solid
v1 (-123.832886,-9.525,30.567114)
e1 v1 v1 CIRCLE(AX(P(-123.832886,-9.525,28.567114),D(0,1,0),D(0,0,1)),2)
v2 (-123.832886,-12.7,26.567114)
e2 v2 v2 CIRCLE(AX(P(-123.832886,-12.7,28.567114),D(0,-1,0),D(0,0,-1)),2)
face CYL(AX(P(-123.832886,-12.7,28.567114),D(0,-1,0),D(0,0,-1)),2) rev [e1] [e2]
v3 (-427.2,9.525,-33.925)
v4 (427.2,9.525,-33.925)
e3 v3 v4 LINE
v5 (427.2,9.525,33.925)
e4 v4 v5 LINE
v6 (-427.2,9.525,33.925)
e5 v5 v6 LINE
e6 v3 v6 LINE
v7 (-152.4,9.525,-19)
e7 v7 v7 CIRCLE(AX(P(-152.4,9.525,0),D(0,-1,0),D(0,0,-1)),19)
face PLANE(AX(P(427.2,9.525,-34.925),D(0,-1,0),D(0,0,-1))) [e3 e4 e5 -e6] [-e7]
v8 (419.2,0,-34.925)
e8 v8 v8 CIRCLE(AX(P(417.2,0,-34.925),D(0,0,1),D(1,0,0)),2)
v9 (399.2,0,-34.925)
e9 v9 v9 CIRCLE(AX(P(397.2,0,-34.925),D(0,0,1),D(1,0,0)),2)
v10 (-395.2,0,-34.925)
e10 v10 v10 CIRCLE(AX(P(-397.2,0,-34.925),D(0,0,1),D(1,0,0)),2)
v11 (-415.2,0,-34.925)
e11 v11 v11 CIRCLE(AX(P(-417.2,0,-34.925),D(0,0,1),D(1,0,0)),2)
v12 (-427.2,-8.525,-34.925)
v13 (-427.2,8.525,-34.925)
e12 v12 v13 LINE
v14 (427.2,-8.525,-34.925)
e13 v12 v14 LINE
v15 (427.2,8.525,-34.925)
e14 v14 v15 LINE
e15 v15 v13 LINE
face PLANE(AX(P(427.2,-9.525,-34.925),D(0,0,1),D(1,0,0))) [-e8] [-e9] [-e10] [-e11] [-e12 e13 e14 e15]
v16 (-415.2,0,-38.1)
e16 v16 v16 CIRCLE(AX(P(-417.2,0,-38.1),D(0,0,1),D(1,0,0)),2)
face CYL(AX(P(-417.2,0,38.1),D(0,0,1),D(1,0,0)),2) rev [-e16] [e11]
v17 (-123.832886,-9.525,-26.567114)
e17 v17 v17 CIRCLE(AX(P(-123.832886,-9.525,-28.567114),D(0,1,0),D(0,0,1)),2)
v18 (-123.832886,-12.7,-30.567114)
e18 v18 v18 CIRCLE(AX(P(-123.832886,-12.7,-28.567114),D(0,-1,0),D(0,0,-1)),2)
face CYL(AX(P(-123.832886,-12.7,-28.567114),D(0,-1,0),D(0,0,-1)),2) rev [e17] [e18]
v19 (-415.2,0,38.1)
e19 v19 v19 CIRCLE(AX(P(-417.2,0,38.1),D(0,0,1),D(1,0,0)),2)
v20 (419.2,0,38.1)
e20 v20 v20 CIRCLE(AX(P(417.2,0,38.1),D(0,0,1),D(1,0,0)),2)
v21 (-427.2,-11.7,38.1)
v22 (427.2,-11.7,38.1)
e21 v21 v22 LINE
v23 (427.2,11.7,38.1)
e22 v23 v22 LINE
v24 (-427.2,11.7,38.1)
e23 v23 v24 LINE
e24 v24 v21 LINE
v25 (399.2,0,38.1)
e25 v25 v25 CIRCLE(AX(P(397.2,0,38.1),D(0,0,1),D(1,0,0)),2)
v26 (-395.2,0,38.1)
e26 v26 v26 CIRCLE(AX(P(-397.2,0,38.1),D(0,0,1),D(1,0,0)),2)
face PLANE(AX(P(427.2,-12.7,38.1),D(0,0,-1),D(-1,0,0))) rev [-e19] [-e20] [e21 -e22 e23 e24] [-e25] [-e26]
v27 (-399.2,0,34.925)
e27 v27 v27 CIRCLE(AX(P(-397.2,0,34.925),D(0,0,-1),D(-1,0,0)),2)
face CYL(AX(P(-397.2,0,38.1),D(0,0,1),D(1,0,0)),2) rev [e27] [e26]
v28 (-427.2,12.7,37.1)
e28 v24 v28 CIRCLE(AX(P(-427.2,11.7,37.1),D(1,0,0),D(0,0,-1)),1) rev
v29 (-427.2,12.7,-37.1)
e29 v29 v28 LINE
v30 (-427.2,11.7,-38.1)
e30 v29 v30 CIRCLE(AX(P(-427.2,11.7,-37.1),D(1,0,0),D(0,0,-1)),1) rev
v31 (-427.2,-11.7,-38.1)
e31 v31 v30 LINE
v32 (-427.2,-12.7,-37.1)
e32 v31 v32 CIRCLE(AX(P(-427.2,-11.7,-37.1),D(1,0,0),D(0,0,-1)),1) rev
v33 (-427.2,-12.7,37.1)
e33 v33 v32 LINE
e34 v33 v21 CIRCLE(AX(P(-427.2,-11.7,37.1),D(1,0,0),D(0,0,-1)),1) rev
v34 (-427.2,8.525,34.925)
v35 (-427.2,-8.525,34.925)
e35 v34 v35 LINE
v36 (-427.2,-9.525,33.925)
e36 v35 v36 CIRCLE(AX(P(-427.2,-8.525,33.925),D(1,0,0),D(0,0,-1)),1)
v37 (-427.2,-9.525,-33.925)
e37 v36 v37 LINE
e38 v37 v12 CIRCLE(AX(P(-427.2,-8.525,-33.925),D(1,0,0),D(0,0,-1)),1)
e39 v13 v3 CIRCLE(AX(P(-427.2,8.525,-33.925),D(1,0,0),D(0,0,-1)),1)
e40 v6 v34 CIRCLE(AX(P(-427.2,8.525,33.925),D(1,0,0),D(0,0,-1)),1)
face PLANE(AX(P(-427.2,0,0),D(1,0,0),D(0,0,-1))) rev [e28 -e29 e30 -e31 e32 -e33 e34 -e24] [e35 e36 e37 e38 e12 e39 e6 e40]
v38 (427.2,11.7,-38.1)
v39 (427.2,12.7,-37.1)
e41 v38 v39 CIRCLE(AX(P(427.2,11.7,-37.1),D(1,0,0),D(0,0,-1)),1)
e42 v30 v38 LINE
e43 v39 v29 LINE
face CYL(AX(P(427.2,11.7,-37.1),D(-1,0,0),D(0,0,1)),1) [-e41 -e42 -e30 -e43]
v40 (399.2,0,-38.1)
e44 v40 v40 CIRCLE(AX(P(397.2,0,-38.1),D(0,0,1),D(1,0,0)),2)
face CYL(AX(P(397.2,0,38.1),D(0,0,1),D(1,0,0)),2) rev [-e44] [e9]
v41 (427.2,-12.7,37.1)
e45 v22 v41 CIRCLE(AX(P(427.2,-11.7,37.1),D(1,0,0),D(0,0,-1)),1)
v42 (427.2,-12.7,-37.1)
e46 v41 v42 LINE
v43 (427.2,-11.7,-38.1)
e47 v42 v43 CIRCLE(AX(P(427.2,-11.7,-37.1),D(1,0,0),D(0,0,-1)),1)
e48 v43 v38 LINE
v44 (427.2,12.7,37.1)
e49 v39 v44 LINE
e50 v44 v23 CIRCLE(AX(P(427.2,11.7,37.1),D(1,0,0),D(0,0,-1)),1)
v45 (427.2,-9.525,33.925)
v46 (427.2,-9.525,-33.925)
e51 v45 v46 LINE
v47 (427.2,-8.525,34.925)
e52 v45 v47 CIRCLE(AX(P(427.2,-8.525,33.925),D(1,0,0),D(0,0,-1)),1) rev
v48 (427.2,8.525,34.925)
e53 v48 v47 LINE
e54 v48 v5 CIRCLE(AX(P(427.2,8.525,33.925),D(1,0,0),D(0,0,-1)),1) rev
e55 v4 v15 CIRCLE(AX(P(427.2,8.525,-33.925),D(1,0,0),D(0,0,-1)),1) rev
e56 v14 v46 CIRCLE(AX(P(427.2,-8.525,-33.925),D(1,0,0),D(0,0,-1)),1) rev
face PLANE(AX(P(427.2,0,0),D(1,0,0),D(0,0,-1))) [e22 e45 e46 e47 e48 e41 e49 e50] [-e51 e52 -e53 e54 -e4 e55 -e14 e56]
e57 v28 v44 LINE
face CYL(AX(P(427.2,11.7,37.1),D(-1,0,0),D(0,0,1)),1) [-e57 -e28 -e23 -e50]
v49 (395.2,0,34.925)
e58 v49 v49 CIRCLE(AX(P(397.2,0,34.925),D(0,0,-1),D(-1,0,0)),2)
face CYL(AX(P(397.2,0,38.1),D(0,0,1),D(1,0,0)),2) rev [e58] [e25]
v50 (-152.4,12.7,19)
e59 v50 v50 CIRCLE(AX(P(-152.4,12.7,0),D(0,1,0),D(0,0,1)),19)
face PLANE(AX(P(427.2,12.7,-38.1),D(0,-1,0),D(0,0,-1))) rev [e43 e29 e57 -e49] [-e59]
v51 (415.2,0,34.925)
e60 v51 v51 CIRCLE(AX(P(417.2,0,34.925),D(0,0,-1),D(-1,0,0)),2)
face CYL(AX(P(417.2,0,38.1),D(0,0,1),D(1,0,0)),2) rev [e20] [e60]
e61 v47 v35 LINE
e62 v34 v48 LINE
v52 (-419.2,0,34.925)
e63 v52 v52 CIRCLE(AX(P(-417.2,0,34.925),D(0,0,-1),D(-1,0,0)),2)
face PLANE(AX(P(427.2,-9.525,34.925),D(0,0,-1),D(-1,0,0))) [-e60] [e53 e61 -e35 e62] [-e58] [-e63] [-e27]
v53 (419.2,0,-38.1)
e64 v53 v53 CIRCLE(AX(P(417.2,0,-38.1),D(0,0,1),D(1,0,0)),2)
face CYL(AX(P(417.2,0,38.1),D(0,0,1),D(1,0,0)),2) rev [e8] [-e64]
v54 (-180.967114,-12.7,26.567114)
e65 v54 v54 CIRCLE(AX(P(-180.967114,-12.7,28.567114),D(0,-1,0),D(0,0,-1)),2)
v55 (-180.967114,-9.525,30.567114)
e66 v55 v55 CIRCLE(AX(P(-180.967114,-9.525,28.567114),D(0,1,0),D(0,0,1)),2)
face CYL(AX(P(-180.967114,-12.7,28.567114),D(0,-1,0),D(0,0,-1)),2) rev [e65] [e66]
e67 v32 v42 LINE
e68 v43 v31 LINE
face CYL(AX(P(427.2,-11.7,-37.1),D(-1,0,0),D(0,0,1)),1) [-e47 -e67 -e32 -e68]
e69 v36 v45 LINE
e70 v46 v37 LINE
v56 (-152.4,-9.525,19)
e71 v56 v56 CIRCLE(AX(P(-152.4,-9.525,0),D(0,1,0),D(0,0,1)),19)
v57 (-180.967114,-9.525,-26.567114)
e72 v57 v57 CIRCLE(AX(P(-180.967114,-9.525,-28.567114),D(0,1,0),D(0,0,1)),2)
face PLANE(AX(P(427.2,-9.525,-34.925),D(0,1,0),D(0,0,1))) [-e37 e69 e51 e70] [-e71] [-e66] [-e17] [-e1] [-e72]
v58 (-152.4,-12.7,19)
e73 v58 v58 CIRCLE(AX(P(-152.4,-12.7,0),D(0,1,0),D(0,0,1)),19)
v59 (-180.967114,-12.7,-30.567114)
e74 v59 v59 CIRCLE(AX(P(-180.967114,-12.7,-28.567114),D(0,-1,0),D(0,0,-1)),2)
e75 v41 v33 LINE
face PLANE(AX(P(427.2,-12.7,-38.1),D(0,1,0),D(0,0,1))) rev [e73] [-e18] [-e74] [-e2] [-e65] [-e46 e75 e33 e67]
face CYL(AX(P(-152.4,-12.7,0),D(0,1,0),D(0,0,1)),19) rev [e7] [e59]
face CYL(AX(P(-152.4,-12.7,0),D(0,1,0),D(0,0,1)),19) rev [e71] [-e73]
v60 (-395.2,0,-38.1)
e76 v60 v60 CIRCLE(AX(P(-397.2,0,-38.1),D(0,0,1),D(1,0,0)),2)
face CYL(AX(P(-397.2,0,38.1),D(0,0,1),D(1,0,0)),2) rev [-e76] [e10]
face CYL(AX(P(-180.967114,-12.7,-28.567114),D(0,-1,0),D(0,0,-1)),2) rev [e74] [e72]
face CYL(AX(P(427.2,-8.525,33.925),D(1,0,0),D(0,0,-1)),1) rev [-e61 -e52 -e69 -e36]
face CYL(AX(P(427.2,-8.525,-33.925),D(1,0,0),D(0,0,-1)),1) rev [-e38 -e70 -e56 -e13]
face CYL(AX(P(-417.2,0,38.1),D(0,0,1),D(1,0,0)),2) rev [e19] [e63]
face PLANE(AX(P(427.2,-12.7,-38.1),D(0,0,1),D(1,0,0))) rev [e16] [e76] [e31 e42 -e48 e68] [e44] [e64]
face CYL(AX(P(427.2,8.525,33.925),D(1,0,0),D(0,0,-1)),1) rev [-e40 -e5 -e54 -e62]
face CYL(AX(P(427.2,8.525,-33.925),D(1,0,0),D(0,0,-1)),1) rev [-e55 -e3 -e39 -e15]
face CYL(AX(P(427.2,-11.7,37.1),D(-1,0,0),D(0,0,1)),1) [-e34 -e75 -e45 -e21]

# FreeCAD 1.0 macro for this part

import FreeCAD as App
import Part
import Sketcher

V = App.Vector
Q = App.Units.Quantity


def edges_at(feature, points):
    """Names of the edges that pass closest to the given points."""
    edges = feature.Shape.Edges
    near = lambda p: min(range(len(edges)), key=lambda i: edges[i].distToShape(Part.Vertex(*p))[0])
    return sorted({f"Edge{near(p) + 1}" for p in points})


def add_polygon(sketch, points):
    """Adds a closed chain of lines whose ends are joined by coincident constraints."""
    first, n = sketch.GeometryCount, len(points)
    for a, b in zip(points, points[1:] + points[:1]):
        sketch.addGeometry(Part.LineSegment(App.Vector(*a, 0), App.Vector(*b, 0)), False)
    for i in range(n):
        sketch.addConstraint(Sketcher.Constraint("Coincident", first + i, 2, first + (i + 1) % n, 1))

doc = App.newDocument("Part")
params = doc.addObject("Spreadsheet::Sheet", "Params")
for row, (alias, value) in enumerate([
    ("sketch1_width", "1 in"),
    ("sketch1_height", "3 in"),
    ("sketch1_width2", "0.75 in"),
    ("sketch1_height2", "2.75 in"),
    ("pad1_length", "854.4 mm"),
    ("fillet_radius", "1 mm"),
    ("hole_diameter", "4 mm"),
    ("hole2_diameter", "4 mm"),
    ("hole2_depth", "0.125 in"),
], start=1):
    params.set(f"A{row}", alias)
    params.set(f"B{row}", "=" + value)
    params.setAlias(f"B{row}", alias)

body = doc.addObject("PartDesign::Body", "Body")

# Sketch on YZ plane
sketch1 = body.newObject("Sketcher::SketchObject", "Sketch")
sketch1.AttachmentSupport = (doc.getObject("YZ_Plane"), [""])
sketch1.MapMode = "FlatFace"
add_polygon(sketch1, [(13, 38), (-13, 38), (-13, -38), (13, -38)])  # lines 0-3
add_polygon(sketch1, [(-10, -35), (-10, 35), (10, 35), (10, -35)])  # lines 4-7
sketch1.addConstraint(Sketcher.Constraint("Horizontal", 0))
sketch1.addConstraint(Sketcher.Constraint("Vertical", 1))
sketch1.addConstraint(Sketcher.Constraint("Horizontal", 2))
sketch1.addConstraint(Sketcher.Constraint("Vertical", 3))
sketch1.addConstraint(Sketcher.Constraint("Vertical", 4))
sketch1.addConstraint(Sketcher.Constraint("Horizontal", 5))
sketch1.addConstraint(Sketcher.Constraint("Vertical", 6))
sketch1.addConstraint(Sketcher.Constraint("Horizontal", 7))
sketch1.addConstraint(Sketcher.Constraint("Symmetric", 0, 2, 2, 2, -1, 1))
sketch1.addConstraint(Sketcher.Constraint("Symmetric", 4, 2, 6, 2, -1, 1))
sketch1.addConstraint(Sketcher.Constraint("DistanceX", 0, 2, 0, 1, Q("1 in")))
sketch1.addConstraint(Sketcher.Constraint("DistanceY", 1, 2, 1, 1, Q("3 in")))
sketch1.addConstraint(Sketcher.Constraint("DistanceX", 5, 1, 5, 2, Q("0.75 in")))
sketch1.addConstraint(Sketcher.Constraint("DistanceY", 4, 1, 4, 2, Q("2.75 in")))
sketch1.setExpression("Constraints[18]", "Params.sketch1_width")
sketch1.setExpression("Constraints[19]", "Params.sketch1_height")
sketch1.setExpression("Constraints[20]", "Params.sketch1_width2")
sketch1.setExpression("Constraints[21]", "Params.sketch1_height2")
pad1 = body.newObject("PartDesign::Pad", "Pad")
pad1.Profile = sketch1
pad1.setExpression("Length", "Params.pad1_length")
pad1.Midplane = True
doc.recompute()

fillet = body.newObject("PartDesign::Fillet", "Fillet")
fillet.Base = (pad1, edges_at(pad1, [
    (0, 9.525, 34.925),
    (0, -9.525, 34.925),
    (0, -9.525, -34.925),
    (0, 9.525, -34.925),
    (0, 12.7, 38.1),
    (0, 12.7, -38.1),
    (0, -12.7, -38.1),
    (0, -12.7, 38.1),
]))
fillet.setExpression("Radius", "Params.fillet_radius")

# Sketch on XZ plane
sketch2 = body.newObject("Sketcher::SketchObject", "Sketch001")
sketch2.AttachmentSupport = (doc.getObject("XZ_Plane"), [""])
sketch2.MapMode = "FlatFace"
sketch2.AttachmentOffset = App.Placement(V(0, 0, -0.5 * 25.4), App.Rotation())
sketch2.addGeometry(Part.Circle(V(-152, 0, 0), V(0, 0, 1), 19), False)
sketch2.addConstraint(Sketcher.Constraint("PointOnObject", 0, 3, -1))
sketch2.addConstraint(Sketcher.Constraint("DistanceX", 0, 3, -1, 1, Q("6 in")))
sketch2.addConstraint(Sketcher.Constraint("Diameter", 0, 38.0))
pocket1 = body.newObject("PartDesign::Pocket", "Pocket")
pocket1.Profile = sketch2
pocket1.Type = "ThroughAll"
pocket1.Reversed = True

# Sketch on XY plane
sketch3 = body.newObject("Sketcher::SketchObject", "Sketch002")
sketch3.AttachmentSupport = (doc.getObject("XY_Plane"), [""])
sketch3.MapMode = "FlatFace"
sketch3.AttachmentOffset = App.Placement(V(0, 0, 1.5 * 25.4), App.Rotation())
sketch3.addGeometry(Part.Circle(V(-417.2, 0, 0), V(0, 0, 1), 2), False)
sketch3.addGeometry(Part.Circle(V(-397.2, 0, 0), V(0, 0, 1), 2), False)
sketch3.addConstraint(Sketcher.Constraint("Equal", 0, 1))
sketch3.addConstraint(Sketcher.Constraint("PointOnObject", 0, 3, -1))
sketch3.addConstraint(Sketcher.Constraint("PointOnObject", 1, 3, -1))
sketch3.addConstraint(Sketcher.Constraint("Diameter", 0, 4.0))
sketch3.addConstraint(Sketcher.Constraint("DistanceX", 0, 3, -1, 1, 417.2))
sketch3.addConstraint(Sketcher.Constraint("DistanceX", 1, 3, -1, 1, 397.2))
doc.recompute()
hole = body.newObject("PartDesign::Hole", "Hole")
hole.Profile = sketch3
hole.ThreadType = "None"
hole.setExpression("Diameter", "Params.hole_diameter")
hole.DepthType = "ThroughAll"
doc.recompute()

mirrored = body.newObject("PartDesign::Mirrored", "Mirrored")
mirrored.Originals = [hole]
mirrored.MirrorPlane = (doc.getObject("YZ_Plane"), [""])
body.Tip = mirrored

# Sketch on XZ plane
sketch4 = body.newObject("Sketcher::SketchObject", "Sketch003")
sketch4.AttachmentSupport = (doc.getObject("XZ_Plane"), [""])
sketch4.MapMode = "FlatFace"
sketch4.AttachmentOffset = App.Placement(V(0, 0, 0.5 * 25.4), App.Rotation())
sketch4.addGeometry(Part.Circle(V(-181, 28.6, 0), V(0, 0, 1), 2), False)
sketch4.addGeometry(Part.Circle(V(-181, -28.6, 0), V(0, 0, 1), 2), False)
sketch4.addGeometry(Part.Circle(V(-123.8, -28.6, 0), V(0, 0, 1), 2), False)
sketch4.addGeometry(Part.Circle(V(-123.8, 28.6, 0), V(0, 0, 1), 2), False)
sketch4.addConstraint(Sketcher.Constraint("Equal", 0, 1))
sketch4.addConstraint(Sketcher.Constraint("Equal", 1, 2))
sketch4.addConstraint(Sketcher.Constraint("Equal", 2, 3))
sketch4.addConstraint(Sketcher.Constraint("Symmetric", 0, 3, 1, 3, -1))
sketch4.addConstraint(Sketcher.Constraint("Symmetric", 2, 3, 3, 3, -1))
sketch4.addConstraint(Sketcher.Constraint("Horizontal", 1, 3, 2, 3))
sketch4.addConstraint(Sketcher.Constraint("Diameter", 0, 4.0))
sketch4.addConstraint(Sketcher.Constraint("DistanceX", 0, 3, -1, 1, 180.967114))
sketch4.addConstraint(Sketcher.Constraint("DistanceY", -1, 1, 0, 3, 28.567114))
sketch4.addConstraint(Sketcher.Constraint("DistanceX", 2, 3, -1, 1, 123.832886))
doc.recompute()
hole2 = body.newObject("PartDesign::Hole", "Hole001")
hole2.Profile = sketch4
hole2.ThreadType = "None"
hole2.setExpression("Diameter", "Params.hole2_diameter")
hole2.DepthType = "Dimension"
hole2.setExpression("Depth", "Params.hole2_depth")
hole2.DrillPoint = "Flat"

doc.recompute()
